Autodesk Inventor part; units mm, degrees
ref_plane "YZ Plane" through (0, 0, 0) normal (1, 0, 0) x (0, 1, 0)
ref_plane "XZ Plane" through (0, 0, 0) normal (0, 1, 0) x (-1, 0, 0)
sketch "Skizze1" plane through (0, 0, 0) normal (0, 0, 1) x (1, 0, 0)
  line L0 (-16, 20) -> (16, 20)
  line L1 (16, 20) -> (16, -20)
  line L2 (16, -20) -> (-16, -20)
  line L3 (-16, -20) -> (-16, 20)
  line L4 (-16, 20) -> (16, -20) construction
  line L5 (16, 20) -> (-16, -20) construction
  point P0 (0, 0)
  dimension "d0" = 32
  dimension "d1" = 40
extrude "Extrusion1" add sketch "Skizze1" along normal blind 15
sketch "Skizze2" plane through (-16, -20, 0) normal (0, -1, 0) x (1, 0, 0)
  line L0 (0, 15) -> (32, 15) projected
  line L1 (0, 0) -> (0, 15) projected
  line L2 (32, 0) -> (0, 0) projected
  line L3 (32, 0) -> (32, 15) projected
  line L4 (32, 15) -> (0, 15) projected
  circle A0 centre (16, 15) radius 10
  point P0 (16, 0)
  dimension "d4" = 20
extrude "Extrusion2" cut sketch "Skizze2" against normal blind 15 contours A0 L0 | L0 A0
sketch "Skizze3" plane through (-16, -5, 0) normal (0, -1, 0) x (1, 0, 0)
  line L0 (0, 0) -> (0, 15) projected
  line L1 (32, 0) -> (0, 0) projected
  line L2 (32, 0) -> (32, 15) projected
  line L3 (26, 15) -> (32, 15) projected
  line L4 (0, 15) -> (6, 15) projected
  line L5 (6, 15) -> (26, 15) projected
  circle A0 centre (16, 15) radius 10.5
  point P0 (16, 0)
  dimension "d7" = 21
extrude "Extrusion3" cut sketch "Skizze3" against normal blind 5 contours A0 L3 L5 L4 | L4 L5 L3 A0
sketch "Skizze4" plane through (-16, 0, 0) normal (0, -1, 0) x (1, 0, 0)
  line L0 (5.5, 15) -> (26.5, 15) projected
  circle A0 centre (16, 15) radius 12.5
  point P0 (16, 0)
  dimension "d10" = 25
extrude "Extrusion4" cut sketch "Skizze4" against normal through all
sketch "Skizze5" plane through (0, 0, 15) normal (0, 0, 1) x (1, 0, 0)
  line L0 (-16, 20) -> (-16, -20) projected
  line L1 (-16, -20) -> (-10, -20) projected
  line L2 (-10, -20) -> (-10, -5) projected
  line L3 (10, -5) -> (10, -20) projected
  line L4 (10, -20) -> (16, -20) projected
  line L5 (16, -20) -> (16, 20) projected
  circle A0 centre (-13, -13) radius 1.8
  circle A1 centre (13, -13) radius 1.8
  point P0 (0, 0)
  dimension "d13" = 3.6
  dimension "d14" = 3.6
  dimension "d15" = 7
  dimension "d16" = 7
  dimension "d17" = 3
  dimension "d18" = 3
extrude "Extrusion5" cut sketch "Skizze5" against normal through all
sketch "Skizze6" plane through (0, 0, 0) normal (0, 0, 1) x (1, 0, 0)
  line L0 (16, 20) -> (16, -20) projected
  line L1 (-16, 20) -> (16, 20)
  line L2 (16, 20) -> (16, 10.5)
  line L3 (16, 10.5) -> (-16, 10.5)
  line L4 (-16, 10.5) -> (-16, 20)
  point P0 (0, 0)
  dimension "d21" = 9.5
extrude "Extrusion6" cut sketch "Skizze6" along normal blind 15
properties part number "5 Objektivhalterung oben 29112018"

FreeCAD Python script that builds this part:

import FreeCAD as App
import Part
import Sketcher
from FreeCAD import Vector

doc = App.newDocument("Part")
params = doc.addObject("Spreadsheet::Sheet", "Params")
for row, (alias, value) in enumerate([
    ("sketch1_width", "32 mm"),
    ("sketch1_height", "40 mm"),
    ("pad1_length", "15 mm"),
    ("sketch2_diameter", "20 mm"),
    ("pocket1_length", "15 mm"),
    ("sketch3_diameter", "21 mm"),
    ("pocket2_length", "5 mm"),
    ("sketch4_diameter", "25 mm"),
    ("sketch5_diameter", "3.6 mm"),
    ("sketch6_height", "9.5 mm"),
    ("sketch6_width", "32 mm"),
    ("pocket5_length", "15 mm"),
], start=1):
    params.set(f"A{row}", alias)
    params.set(f"B{row}", "=" + value)
    params.setAlias(f"B{row}", alias)

body = doc.addObject("PartDesign::Body", "Body")

# Sketch on XY plane
sketch1 = body.newObject("Sketcher::SketchObject", "Sketch")
sketch1.AttachmentSupport = (doc.getObject("XY_Plane"), [""])
sketch1.MapMode = "FlatFace"
sketch1.addGeometry([
    Part.LineSegment(Vector(16, 20, 0), Vector(-16, 20, 0)),
    Part.LineSegment(Vector(-16, 20, 0), Vector(-16, -20, 0)),
    Part.LineSegment(Vector(-16, -20, 0), Vector(16, -20, 0)),
    Part.LineSegment(Vector(16, -20, 0), Vector(16, 20, 0)),
], False)
sketch1.addConstraint([
    Sketcher.Constraint("Coincident", 0, 2, 1, 1),
    Sketcher.Constraint("Coincident", 1, 2, 2, 1),
    Sketcher.Constraint("Coincident", 2, 2, 3, 1),
    Sketcher.Constraint("Coincident", 3, 2, 0, 1),
    Sketcher.Constraint("Horizontal", 0),
    Sketcher.Constraint("Vertical", 1),
    Sketcher.Constraint("Horizontal", 2),
    Sketcher.Constraint("Vertical", 3),
    Sketcher.Constraint("Symmetric", 0, 2, 2, 2, -1, 1),
    Sketcher.Constraint("DistanceX", 0, 2, 0, 1, 32.0),
    Sketcher.Constraint("DistanceY", 1, 2, 1, 1, 40.0),
])
sketch1.setExpression("Constraints[9]", "Params.sketch1_width")
sketch1.setExpression("Constraints[10]", "Params.sketch1_height")
pad1 = body.newObject("PartDesign::Pad", "Pad")
pad1.Profile = sketch1
pad1.setExpression("Length", "Params.pad1_length")

# Sketch on XZ plane
sketch2 = body.newObject("Sketcher::SketchObject", "Sketch001")
sketch2.AttachmentSupport = (doc.getObject("XZ_Plane"), [""])
sketch2.MapMode = "FlatFace"
sketch2.AttachmentOffset = App.Placement(Vector(0, 0, 20), App.Rotation())
sketch2.addGeometry(Part.Circle(Vector(0, 15, 0), Vector(0, 0, 1), 10), False)
sketch2.addConstraint([
    Sketcher.Constraint("PointOnObject", 0, 3, -2),
    Sketcher.Constraint("Diameter", 0, 20.0),
    Sketcher.Constraint("DistanceY", -1, 1, 0, 3, 15.0),
])
sketch2.setExpression("Constraints[1]", "Params.sketch2_diameter")
pocket1 = body.newObject("PartDesign::Pocket", "Pocket")
pocket1.Profile = sketch2
pocket1.setExpression("Length", "Params.pocket1_length")

# Sketch on XZ plane
sketch3 = body.newObject("Sketcher::SketchObject", "Sketch002")
sketch3.AttachmentSupport = (doc.getObject("XZ_Plane"), [""])
sketch3.MapMode = "FlatFace"
sketch3.AttachmentOffset = App.Placement(Vector(0, 0, 5), App.Rotation())
sketch3.addGeometry(Part.Circle(Vector(0, 15, 0), Vector(0, 0, 1), 10), False)
sketch3.addConstraint([
    Sketcher.Constraint("PointOnObject", 0, 3, -2),
    Sketcher.Constraint("Diameter", 0, 21.0),
    Sketcher.Constraint("DistanceY", -1, 1, 0, 3, 15.0),
])
sketch3.setExpression("Constraints[1]", "Params.sketch3_diameter")
pocket2 = body.newObject("PartDesign::Pocket", "Pocket001")
pocket2.Profile = sketch3
pocket2.setExpression("Length", "Params.pocket2_length")

# Sketch on XZ plane
sketch4 = body.newObject("Sketcher::SketchObject", "Sketch003")
sketch4.AttachmentSupport = (doc.getObject("XZ_Plane"), [""])
sketch4.MapMode = "FlatFace"
sketch4.addGeometry(Part.Circle(Vector(0, 15, 0), Vector(0, 0, 1), 12), False)
sketch4.addConstraint([
    Sketcher.Constraint("PointOnObject", 0, 3, -2),
    Sketcher.Constraint("Diameter", 0, 25.0),
    Sketcher.Constraint("DistanceY", -1, 1, 0, 3, 15.0),
])
sketch4.setExpression("Constraints[1]", "Params.sketch4_diameter")
pocket3 = body.newObject("PartDesign::Pocket", "Pocket002")
pocket3.Profile = sketch4
pocket3.Type = "ThroughAll"

# Sketch on XY plane
sketch5 = body.newObject("Sketcher::SketchObject", "Sketch004")
sketch5.AttachmentSupport = (doc.getObject("XY_Plane"), [""])
sketch5.MapMode = "FlatFace"
sketch5.AttachmentOffset = App.Placement(Vector(0, 0, 15), App.Rotation())
sketch5.addGeometry([
    Part.Circle(Vector(-13, -13, 0), Vector(0, 0, 1), 1.8),
    Part.Circle(Vector(13, -13, 0), Vector(0, 0, 1), 1.8),
], False)
sketch5.addConstraint([
    Sketcher.Constraint("Equal", 0, 1),
    Sketcher.Constraint("Symmetric", 0, 3, 1, 3, -2),
    Sketcher.Constraint("Diameter", 0, 3.6),
    Sketcher.Constraint("DistanceX", 0, 3, -1, 1, 13.0),
    Sketcher.Constraint("DistanceY", 0, 3, -1, 1, 13.0),
])
sketch5.setExpression("Constraints[2]", "Params.sketch5_diameter")
pocket4 = body.newObject("PartDesign::Pocket", "Pocket003")
pocket4.Profile = sketch5
pocket4.Type = "ThroughAll"

# Sketch on XY plane
sketch6 = body.newObject("Sketcher::SketchObject", "Sketch005")
sketch6.AttachmentSupport = (doc.getObject("XY_Plane"), [""])
sketch6.MapMode = "FlatFace"
sketch6.addGeometry([
    Part.LineSegment(Vector(16, 10, 0), Vector(16, 20, 0)),
    Part.LineSegment(Vector(16, 20, 0), Vector(-16, 20, 0)),
    Part.LineSegment(Vector(-16, 20, 0), Vector(-16, 10, 0)),
    Part.LineSegment(Vector(-16, 10, 0), Vector(16, 10, 0)),
], False)
sketch6.addConstraint([
    Sketcher.Constraint("Coincident", 0, 2, 1, 1),
    Sketcher.Constraint("Coincident", 1, 2, 2, 1),
    Sketcher.Constraint("Coincident", 2, 2, 3, 1),
    Sketcher.Constraint("Coincident", 3, 2, 0, 1),
    Sketcher.Constraint("Vertical", 0),
    Sketcher.Constraint("Horizontal", 1),
    Sketcher.Constraint("Vertical", 2),
    Sketcher.Constraint("Horizontal", 3),
    Sketcher.Constraint("DistanceY", 0, 1, 0, 2, 9.5),
    Sketcher.Constraint("DistanceX", 1, 2, 1, 1, 32.0),
    Sketcher.Constraint("DistanceX", -1, 1, 0, 2, 16.0),
    Sketcher.Constraint("DistanceY", -1, 1, 0, 2, 20.0),
])
sketch6.setExpression("Constraints[8]", "Params.sketch6_height")
sketch6.setExpression("Constraints[9]", "Params.sketch6_width")
pocket5 = body.newObject("PartDesign::Pocket", "Pocket004")
pocket5.Profile = sketch6
pocket5.setExpression("Length", "Params.pocket5_length")
pocket5.Reversed = True

doc.recompute()
